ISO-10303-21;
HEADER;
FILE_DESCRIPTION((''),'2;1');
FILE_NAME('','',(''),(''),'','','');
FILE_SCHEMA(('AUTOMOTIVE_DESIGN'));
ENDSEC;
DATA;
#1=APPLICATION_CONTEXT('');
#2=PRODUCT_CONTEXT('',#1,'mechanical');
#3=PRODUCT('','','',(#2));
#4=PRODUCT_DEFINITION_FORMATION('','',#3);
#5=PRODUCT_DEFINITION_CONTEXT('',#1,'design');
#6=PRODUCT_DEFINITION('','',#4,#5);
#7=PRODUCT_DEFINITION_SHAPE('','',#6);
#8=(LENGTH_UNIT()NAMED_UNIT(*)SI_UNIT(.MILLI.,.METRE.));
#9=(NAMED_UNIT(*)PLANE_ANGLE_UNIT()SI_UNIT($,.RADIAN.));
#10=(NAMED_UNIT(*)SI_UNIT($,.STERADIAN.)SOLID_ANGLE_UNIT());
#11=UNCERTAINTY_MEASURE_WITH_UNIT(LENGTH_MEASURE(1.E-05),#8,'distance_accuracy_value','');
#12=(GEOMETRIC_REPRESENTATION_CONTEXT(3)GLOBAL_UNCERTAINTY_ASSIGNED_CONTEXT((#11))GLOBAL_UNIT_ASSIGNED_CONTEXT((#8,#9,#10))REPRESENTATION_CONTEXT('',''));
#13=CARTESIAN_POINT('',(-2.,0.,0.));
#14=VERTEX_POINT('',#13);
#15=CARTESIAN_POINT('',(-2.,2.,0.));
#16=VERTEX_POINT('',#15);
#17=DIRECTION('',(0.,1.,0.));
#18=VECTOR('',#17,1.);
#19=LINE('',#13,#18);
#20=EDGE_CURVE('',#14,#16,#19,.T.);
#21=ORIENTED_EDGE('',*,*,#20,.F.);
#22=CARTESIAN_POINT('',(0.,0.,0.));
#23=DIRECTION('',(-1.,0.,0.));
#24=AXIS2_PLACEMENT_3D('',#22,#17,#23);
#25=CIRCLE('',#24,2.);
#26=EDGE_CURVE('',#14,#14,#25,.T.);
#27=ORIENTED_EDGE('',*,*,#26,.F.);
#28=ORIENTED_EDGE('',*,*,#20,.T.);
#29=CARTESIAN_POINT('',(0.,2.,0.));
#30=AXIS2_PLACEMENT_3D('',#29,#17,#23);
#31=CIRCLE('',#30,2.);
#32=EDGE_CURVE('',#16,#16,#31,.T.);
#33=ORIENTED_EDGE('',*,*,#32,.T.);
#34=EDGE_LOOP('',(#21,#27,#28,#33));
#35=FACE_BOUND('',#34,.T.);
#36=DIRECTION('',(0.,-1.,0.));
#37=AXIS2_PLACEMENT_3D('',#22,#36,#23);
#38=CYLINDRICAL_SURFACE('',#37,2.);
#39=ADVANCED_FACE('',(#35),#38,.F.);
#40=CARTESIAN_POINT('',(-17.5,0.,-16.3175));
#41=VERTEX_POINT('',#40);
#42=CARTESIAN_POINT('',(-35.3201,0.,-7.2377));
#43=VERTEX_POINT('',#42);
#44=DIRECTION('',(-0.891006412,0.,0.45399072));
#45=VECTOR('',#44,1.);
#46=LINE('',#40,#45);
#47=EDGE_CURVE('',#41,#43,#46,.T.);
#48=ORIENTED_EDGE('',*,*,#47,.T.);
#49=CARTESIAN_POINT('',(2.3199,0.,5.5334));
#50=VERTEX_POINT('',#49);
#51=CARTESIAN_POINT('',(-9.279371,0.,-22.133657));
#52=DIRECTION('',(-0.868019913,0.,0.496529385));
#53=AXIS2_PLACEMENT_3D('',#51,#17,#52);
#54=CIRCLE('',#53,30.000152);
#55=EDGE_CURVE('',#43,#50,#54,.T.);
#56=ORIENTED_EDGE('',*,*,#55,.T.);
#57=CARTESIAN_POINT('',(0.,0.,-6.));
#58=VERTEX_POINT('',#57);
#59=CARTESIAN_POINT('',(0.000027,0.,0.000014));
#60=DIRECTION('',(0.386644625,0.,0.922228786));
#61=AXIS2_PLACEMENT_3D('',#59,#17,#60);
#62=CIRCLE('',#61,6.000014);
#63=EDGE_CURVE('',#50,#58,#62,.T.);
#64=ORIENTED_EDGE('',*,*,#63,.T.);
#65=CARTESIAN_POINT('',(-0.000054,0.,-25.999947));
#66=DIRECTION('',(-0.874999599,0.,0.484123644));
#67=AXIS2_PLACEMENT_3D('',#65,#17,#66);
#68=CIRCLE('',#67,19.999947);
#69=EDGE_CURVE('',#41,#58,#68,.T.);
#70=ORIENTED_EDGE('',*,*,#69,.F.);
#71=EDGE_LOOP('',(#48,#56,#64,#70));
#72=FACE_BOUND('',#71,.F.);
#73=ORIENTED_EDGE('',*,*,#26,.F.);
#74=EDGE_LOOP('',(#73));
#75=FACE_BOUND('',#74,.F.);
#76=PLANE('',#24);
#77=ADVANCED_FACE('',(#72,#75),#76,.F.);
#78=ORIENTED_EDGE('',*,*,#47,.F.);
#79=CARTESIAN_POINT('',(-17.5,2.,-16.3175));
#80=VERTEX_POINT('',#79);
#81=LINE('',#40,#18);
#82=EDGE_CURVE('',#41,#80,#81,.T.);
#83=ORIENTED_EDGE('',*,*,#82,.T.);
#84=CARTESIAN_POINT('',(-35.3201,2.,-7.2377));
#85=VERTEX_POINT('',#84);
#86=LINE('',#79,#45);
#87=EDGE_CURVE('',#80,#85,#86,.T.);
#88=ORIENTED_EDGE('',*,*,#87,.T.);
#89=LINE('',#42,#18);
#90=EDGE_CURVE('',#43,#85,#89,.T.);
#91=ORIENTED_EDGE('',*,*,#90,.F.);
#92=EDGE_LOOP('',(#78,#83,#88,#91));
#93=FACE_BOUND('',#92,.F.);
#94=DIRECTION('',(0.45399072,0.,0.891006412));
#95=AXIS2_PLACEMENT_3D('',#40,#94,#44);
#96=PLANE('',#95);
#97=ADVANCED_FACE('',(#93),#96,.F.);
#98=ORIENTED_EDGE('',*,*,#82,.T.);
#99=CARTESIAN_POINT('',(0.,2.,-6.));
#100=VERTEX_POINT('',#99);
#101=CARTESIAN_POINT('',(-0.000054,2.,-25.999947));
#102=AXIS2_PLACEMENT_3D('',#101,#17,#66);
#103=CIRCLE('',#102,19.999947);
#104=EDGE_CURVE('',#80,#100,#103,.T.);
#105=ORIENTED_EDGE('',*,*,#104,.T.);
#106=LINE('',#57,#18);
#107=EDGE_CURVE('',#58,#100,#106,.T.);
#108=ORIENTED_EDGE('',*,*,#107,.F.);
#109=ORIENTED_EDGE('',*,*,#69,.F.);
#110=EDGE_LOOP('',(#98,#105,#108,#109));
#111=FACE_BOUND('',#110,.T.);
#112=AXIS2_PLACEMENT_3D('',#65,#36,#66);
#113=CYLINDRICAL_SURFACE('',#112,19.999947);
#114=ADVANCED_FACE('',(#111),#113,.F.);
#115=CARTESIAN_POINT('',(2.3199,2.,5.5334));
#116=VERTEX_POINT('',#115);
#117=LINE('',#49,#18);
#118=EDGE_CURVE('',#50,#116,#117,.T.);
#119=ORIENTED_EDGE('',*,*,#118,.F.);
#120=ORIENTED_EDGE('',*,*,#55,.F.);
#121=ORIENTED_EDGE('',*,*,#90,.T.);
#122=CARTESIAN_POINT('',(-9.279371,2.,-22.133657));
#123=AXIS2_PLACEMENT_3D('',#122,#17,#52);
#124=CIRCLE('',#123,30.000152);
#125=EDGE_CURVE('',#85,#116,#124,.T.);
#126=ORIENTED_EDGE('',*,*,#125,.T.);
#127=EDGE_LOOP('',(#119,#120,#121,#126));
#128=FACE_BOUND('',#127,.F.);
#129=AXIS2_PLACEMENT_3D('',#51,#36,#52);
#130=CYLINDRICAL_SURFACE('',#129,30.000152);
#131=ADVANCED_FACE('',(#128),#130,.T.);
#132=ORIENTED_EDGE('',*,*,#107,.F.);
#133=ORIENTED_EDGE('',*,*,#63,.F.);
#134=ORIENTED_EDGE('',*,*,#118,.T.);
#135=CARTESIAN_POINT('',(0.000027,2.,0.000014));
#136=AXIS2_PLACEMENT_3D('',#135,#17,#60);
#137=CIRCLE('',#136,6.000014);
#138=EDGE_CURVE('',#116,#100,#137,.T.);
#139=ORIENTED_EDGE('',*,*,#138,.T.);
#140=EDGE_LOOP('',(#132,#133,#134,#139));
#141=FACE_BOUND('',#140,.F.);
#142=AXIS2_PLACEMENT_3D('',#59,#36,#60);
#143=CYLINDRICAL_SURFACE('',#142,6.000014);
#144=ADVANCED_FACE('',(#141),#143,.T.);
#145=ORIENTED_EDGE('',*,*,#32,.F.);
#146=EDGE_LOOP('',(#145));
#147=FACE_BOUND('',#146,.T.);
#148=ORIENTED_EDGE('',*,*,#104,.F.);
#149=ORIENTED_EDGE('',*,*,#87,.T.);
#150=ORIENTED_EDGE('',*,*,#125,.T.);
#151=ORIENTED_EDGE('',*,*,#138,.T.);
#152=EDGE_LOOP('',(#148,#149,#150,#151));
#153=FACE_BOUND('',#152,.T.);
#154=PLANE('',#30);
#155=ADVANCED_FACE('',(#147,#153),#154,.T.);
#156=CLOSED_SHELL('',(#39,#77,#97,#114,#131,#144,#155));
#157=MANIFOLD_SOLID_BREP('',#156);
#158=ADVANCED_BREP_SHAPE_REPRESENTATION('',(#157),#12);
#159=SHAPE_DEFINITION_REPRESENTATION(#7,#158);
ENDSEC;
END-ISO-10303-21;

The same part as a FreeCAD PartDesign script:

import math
import FreeCAD as App
import Part
import Sketcher

V = App.Vector
Q = App.Units.Quantity

doc = App.newDocument("Part")
body = doc.addObject("PartDesign::Body", "Body")

# Sketch on XZ plane
sketch1 = body.newObject("Sketcher::SketchObject", "Sketch")
sketch1.AttachmentSupport = (doc.getObject("XZ_Plane"), [""])
sketch1.MapMode = "FlatFace"
sketch1.addGeometry([
    Part.ArcOfCircle(Part.Circle(V(-9.2795, -22.1335, 0), V(0, 0, 1), 29.999962), math.radians(67.25404), math.radians(150.229487)),  # 0
    Part.ArcOfCircle(Part.Circle(V(0, 0, 0), V(0, 0, 1), 6.000038), math.radians(-90), math.radians(67.253938)),  # 1
    Part.ArcOfCircle(Part.Circle(V(0, -26, 0), V(0, 0, 1), 20.00002), math.radians(90), math.radians(151.044871)),  # 2
    Part.LineSegment(V(-17.5, -16.3175, 0), V(-35.3201, -7.2377, 0)),  # 3
    Part.Circle(V(0, 0, 0), V(0, 0, 1), 2),  # 4
], False)
sketch1.addConstraint([
    Sketcher.Constraint("Tangent", 0, 1, 1, 2),
    Sketcher.Constraint("Tangent", 1, 1, 2, 1),
    Sketcher.Constraint("Coincident", 2, 2, 3, 1),
    Sketcher.Constraint("Coincident", 3, 2, 0, 2),
    Sketcher.Constraint("Coincident", 1, 3, -1, 1),
    Sketcher.Constraint("Coincident", 4, 3, -1, 1),
    Sketcher.Constraint("PointOnObject", 2, 3, -2),
    Sketcher.Constraint("Diameter", 4, Q("4 mm")),
    Sketcher.Constraint("Radius", 0, Q("30 mm")),
    Sketcher.Constraint("Radius", 1, Q("6 mm")),
    Sketcher.Constraint("Radius", 2, Q("20 mm")),
    Sketcher.Constraint("Distance", 3, Q("20 mm")),
    Sketcher.Constraint("Angle", 3, Q("153 deg")),
    Sketcher.Constraint("DistanceX", 2, 2, -1, 1, Q("17.5 mm")),
])
pad1 = body.newObject("PartDesign::Pad", "Pad")
pad1.Profile = sketch1
pad1.Length = 2
pad1.Reversed = True

doc.recompute()
